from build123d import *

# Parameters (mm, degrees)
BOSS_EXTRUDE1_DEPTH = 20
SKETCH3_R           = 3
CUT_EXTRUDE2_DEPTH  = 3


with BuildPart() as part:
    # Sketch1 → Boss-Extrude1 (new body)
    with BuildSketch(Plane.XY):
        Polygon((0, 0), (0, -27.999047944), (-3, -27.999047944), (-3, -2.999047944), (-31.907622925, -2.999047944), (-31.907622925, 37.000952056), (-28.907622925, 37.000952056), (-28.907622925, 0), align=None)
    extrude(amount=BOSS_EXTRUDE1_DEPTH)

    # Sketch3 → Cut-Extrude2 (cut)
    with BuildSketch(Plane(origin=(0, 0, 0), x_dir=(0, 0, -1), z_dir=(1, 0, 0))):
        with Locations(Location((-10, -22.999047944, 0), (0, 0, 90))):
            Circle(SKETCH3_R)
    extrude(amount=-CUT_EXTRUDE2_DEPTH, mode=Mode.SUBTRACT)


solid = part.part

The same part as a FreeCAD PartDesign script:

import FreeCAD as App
import Part
import Sketcher

V = App.Vector


def add_polygon(sketch, points):
    """Adds a closed chain of lines whose ends are joined by coincident constraints."""
    first, n = sketch.GeometryCount, len(points)
    for a, b in zip(points, points[1:] + points[:1]):
        sketch.addGeometry(Part.LineSegment(App.Vector(*a, 0), App.Vector(*b, 0)), False)
    for i in range(n):
        sketch.addConstraint(Sketcher.Constraint("Coincident", first + i, 2, first + (i + 1) % n, 1))

doc = App.newDocument("Part")
body = doc.addObject("PartDesign::Body", "Body")

# Sketch on XY plane
sketch1 = body.newObject("Sketcher::SketchObject", "Sketch")
sketch1.AttachmentSupport = (doc.getObject("XY_Plane"), [""])
sketch1.MapMode = "FlatFace"
add_polygon(sketch1, [(0, -28), (0, 0), (-28.9, 0), (-28.9, 37), (-31.9, 37), (-31.9, -3), (-3, -3), (-3, -28)])  # lines 0-7
sketch1.addConstraint([
    Sketcher.Constraint("Vertical", 0),
    Sketcher.Constraint("Horizontal", 1),
    Sketcher.Constraint("Vertical", 2),
    Sketcher.Constraint("Horizontal", 3),
    Sketcher.Constraint("Vertical", 4),
    Sketcher.Constraint("Horizontal", 5),
    Sketcher.Constraint("Vertical", 6),
    Sketcher.Constraint("Horizontal", 7),
    Sketcher.Constraint("Coincident", 0, 2, -1, 1),
    Sketcher.Constraint("Equal", 1, 5),
    Sketcher.Constraint("DistanceX", 3, 2, 3, 1, 3.0),
    Sketcher.Constraint("DistanceY", 4, 2, 4, 1, 40.0),
    Sketcher.Constraint("DistanceY", 6, 2, 6, 1, 25.0),
    Sketcher.Constraint("DistanceX", 1, 2, 1, 1, 28.907623),
    Sketcher.Constraint("DistanceY", 0, 1, 0, 2, 27.999048),
])
pad1 = body.newObject("PartDesign::Pad", "Pad")
pad1.Profile = sketch1
pad1.Length = 20

# Sketch on YZ plane
sketch2 = body.newObject("Sketcher::SketchObject", "Sketch001")
sketch2.AttachmentSupport = (doc.getObject("YZ_Plane"), [""])
sketch2.MapMode = "FlatFace"
sketch2.addGeometry(Part.Circle(V(-23, 10, 0), V(0, 0, 1), 3), False)
sketch2.addConstraint([
    Sketcher.Constraint("Diameter", 0, 6.0),
    Sketcher.Constraint("DistanceY", -1, 1, 0, 3, 10.0),
    Sketcher.Constraint("DistanceX", 0, 3, -1, 1, 22.999048),
])
pocket1 = body.newObject("PartDesign::Pocket", "Pocket")
pocket1.Profile = sketch2
pocket1.Length = 3

doc.recompute()
